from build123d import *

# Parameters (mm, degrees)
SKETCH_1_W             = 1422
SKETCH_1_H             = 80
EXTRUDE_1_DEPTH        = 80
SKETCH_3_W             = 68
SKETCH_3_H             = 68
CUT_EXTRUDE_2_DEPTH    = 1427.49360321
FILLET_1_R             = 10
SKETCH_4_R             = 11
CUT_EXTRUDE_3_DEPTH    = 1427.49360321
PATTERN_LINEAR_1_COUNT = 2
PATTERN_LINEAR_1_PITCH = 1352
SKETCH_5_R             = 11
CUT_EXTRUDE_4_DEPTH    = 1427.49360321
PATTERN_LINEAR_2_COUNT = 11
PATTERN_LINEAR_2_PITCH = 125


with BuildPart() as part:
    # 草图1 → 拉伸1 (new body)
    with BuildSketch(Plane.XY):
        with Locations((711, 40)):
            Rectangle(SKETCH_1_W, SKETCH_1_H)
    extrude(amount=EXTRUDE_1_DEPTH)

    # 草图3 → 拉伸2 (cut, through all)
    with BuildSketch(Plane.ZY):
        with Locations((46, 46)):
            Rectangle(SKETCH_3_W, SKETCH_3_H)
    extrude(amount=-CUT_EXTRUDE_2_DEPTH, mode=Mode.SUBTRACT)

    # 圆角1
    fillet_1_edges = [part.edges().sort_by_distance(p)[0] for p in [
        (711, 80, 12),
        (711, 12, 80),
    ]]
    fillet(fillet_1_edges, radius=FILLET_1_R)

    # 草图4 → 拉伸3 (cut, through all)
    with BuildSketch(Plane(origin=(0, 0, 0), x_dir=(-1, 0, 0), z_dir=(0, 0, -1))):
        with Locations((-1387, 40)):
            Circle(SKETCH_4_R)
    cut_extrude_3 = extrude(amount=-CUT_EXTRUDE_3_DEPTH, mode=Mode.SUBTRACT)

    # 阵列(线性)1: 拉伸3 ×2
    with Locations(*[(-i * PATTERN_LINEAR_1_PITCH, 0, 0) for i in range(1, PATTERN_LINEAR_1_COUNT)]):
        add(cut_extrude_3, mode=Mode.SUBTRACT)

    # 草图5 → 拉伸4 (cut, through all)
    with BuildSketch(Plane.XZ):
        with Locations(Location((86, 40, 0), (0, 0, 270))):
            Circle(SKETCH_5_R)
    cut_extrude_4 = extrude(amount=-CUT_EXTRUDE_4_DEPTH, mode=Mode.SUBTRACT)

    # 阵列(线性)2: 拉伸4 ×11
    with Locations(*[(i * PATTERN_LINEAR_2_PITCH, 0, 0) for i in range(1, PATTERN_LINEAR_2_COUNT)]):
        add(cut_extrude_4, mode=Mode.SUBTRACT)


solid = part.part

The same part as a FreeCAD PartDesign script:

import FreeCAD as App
import Part
import Sketcher
from FreeCAD import Vector


def edges_at(feature, points):
    """Names of the edges that pass closest to the given points."""
    edges = feature.Shape.Edges
    near = lambda p: min(range(len(edges)), key=lambda i: edges[i].distToShape(Part.Vertex(*p))[0])
    return sorted({f"Edge{near(p) + 1}" for p in points})


def add_polygon(sketch, points):
    """Adds a closed chain of lines whose ends are joined by coincident constraints."""
    first, n = sketch.GeometryCount, len(points)
    for a, b in zip(points, points[1:] + points[:1]):
        sketch.addGeometry(Part.LineSegment(App.Vector(*a, 0), App.Vector(*b, 0)), False)
    for i in range(n):
        sketch.addConstraint(Sketcher.Constraint("Coincident", first + i, 2, first + (i + 1) % n, 1))

doc = App.newDocument("Part")
body = doc.addObject("PartDesign::Body", "Body")

# Sketch on XY plane
sketch1 = body.newObject("Sketcher::SketchObject", "Sketch")
sketch1.AttachmentSupport = (doc.getObject("XY_Plane"), [""])
sketch1.MapMode = "FlatFace"
add_polygon(sketch1, [(0, 80), (0, 0), (1422, 0), (1422, 80)])  # lines 0-3
sketch1.addConstraint(Sketcher.Constraint("Vertical", 0))
sketch1.addConstraint(Sketcher.Constraint("Horizontal", 1))
sketch1.addConstraint(Sketcher.Constraint("Vertical", 2))
sketch1.addConstraint(Sketcher.Constraint("Horizontal", 3))
sketch1.addConstraint(Sketcher.Constraint("Coincident", 0, 2, -1, 1))
sketch1.addConstraint(Sketcher.Constraint("DistanceX", 1, 1, 1, 2, 1422.0))
sketch1.addConstraint(Sketcher.Constraint("DistanceY", 0, 2, 0, 1, 80.0))
pad1 = body.newObject("PartDesign::Pad", "Pad")
pad1.Profile = sketch1
pad1.Length = 80

# Sketch on YZ plane
sketch2 = body.newObject("Sketcher::SketchObject", "Sketch001")
sketch2.AttachmentSupport = (doc.getObject("YZ_Plane"), [""])
sketch2.MapMode = "FlatFace"
add_polygon(sketch2, [(80, 12), (12, 12), (12, 80), (80, 80)])  # lines 0-3
sketch2.addConstraint(Sketcher.Constraint("Horizontal", 0))
sketch2.addConstraint(Sketcher.Constraint("Vertical", 1))
sketch2.addConstraint(Sketcher.Constraint("Horizontal", 2))
sketch2.addConstraint(Sketcher.Constraint("Vertical", 3))
sketch2.addConstraint(Sketcher.Constraint("Equal", 2, 1))
sketch2.addConstraint(Sketcher.Constraint("DistanceX", 0, 2, 0, 1, 68.0))
sketch2.addConstraint(Sketcher.Constraint("DistanceX", -1, 1, 0, 2, 12.0))
sketch2.addConstraint(Sketcher.Constraint("DistanceY", -1, 1, 0, 2, 12.0))
pocket1 = body.newObject("PartDesign::Pocket", "Pocket")
pocket1.Profile = sketch2
pocket1.Type = "ThroughAll"
pocket1.Reversed = True
doc.recompute()

fillet = body.newObject("PartDesign::Fillet", "Fillet")
fillet.Base = (pocket1, edges_at(pocket1, [(711, 80, 12), (711, 12, 80)]))
fillet.Radius = 10

# Sketch on XY plane
sketch3 = body.newObject("Sketcher::SketchObject", "Sketch002")
sketch3.AttachmentSupport = (doc.getObject("XY_Plane"), [""])
sketch3.MapMode = "FlatFace"
sketch3.addGeometry(Part.Circle(Vector(1387, 40, 0), Vector(0, 0, 1), 11), False)
sketch3.addConstraint(Sketcher.Constraint("Diameter", 0, 22.0))
sketch3.addConstraint(Sketcher.Constraint("DistanceX", -1, 1, 0, 3, 1387.0))
sketch3.addConstraint(Sketcher.Constraint("DistanceY", -1, 1, 0, 3, 40.0))
pocket2 = body.newObject("PartDesign::Pocket", "Pocket001")
pocket2.Profile = sketch3
pocket2.Type = "ThroughAll"
pocket2.Reversed = True
doc.recompute()

linearpattern = body.newObject("PartDesign::LinearPattern", "LinearPattern")
linearpattern.Originals = [pocket2]
linearpattern.Direction = (doc.getObject("X_Axis"), [""])
linearpattern.Mode = "offset"
linearpattern.Offset = 1352
linearpattern.Occurrences = 2
linearpattern.Reversed = True
body.Tip = linearpattern

# Sketch on XZ plane
sketch4 = body.newObject("Sketcher::SketchObject", "Sketch003")
sketch4.AttachmentSupport = (doc.getObject("XZ_Plane"), [""])
sketch4.MapMode = "FlatFace"
sketch4.addGeometry(Part.Circle(Vector(86, 40, 0), Vector(0, 0, 1), 11), False)
sketch4.addConstraint(Sketcher.Constraint("Diameter", 0, 22.0))
sketch4.addConstraint(Sketcher.Constraint("DistanceX", -1, 1, 0, 3, 86.0))
sketch4.addConstraint(Sketcher.Constraint("DistanceY", -1, 1, 0, 3, 40.0))
pocket3 = body.newObject("PartDesign::Pocket", "Pocket002")
pocket3.Profile = sketch4
pocket3.Type = "ThroughAll"
doc.recompute()

linearpattern2 = body.newObject("PartDesign::LinearPattern", "LinearPattern001")
linearpattern2.Originals = [pocket3]
linearpattern2.Direction = (doc.getObject("X_Axis"), [""])
linearpattern2.Mode = "offset"
linearpattern2.Offset = 125
linearpattern2.Occurrences = 11
body.Tip = linearpattern2

doc.recompute()
